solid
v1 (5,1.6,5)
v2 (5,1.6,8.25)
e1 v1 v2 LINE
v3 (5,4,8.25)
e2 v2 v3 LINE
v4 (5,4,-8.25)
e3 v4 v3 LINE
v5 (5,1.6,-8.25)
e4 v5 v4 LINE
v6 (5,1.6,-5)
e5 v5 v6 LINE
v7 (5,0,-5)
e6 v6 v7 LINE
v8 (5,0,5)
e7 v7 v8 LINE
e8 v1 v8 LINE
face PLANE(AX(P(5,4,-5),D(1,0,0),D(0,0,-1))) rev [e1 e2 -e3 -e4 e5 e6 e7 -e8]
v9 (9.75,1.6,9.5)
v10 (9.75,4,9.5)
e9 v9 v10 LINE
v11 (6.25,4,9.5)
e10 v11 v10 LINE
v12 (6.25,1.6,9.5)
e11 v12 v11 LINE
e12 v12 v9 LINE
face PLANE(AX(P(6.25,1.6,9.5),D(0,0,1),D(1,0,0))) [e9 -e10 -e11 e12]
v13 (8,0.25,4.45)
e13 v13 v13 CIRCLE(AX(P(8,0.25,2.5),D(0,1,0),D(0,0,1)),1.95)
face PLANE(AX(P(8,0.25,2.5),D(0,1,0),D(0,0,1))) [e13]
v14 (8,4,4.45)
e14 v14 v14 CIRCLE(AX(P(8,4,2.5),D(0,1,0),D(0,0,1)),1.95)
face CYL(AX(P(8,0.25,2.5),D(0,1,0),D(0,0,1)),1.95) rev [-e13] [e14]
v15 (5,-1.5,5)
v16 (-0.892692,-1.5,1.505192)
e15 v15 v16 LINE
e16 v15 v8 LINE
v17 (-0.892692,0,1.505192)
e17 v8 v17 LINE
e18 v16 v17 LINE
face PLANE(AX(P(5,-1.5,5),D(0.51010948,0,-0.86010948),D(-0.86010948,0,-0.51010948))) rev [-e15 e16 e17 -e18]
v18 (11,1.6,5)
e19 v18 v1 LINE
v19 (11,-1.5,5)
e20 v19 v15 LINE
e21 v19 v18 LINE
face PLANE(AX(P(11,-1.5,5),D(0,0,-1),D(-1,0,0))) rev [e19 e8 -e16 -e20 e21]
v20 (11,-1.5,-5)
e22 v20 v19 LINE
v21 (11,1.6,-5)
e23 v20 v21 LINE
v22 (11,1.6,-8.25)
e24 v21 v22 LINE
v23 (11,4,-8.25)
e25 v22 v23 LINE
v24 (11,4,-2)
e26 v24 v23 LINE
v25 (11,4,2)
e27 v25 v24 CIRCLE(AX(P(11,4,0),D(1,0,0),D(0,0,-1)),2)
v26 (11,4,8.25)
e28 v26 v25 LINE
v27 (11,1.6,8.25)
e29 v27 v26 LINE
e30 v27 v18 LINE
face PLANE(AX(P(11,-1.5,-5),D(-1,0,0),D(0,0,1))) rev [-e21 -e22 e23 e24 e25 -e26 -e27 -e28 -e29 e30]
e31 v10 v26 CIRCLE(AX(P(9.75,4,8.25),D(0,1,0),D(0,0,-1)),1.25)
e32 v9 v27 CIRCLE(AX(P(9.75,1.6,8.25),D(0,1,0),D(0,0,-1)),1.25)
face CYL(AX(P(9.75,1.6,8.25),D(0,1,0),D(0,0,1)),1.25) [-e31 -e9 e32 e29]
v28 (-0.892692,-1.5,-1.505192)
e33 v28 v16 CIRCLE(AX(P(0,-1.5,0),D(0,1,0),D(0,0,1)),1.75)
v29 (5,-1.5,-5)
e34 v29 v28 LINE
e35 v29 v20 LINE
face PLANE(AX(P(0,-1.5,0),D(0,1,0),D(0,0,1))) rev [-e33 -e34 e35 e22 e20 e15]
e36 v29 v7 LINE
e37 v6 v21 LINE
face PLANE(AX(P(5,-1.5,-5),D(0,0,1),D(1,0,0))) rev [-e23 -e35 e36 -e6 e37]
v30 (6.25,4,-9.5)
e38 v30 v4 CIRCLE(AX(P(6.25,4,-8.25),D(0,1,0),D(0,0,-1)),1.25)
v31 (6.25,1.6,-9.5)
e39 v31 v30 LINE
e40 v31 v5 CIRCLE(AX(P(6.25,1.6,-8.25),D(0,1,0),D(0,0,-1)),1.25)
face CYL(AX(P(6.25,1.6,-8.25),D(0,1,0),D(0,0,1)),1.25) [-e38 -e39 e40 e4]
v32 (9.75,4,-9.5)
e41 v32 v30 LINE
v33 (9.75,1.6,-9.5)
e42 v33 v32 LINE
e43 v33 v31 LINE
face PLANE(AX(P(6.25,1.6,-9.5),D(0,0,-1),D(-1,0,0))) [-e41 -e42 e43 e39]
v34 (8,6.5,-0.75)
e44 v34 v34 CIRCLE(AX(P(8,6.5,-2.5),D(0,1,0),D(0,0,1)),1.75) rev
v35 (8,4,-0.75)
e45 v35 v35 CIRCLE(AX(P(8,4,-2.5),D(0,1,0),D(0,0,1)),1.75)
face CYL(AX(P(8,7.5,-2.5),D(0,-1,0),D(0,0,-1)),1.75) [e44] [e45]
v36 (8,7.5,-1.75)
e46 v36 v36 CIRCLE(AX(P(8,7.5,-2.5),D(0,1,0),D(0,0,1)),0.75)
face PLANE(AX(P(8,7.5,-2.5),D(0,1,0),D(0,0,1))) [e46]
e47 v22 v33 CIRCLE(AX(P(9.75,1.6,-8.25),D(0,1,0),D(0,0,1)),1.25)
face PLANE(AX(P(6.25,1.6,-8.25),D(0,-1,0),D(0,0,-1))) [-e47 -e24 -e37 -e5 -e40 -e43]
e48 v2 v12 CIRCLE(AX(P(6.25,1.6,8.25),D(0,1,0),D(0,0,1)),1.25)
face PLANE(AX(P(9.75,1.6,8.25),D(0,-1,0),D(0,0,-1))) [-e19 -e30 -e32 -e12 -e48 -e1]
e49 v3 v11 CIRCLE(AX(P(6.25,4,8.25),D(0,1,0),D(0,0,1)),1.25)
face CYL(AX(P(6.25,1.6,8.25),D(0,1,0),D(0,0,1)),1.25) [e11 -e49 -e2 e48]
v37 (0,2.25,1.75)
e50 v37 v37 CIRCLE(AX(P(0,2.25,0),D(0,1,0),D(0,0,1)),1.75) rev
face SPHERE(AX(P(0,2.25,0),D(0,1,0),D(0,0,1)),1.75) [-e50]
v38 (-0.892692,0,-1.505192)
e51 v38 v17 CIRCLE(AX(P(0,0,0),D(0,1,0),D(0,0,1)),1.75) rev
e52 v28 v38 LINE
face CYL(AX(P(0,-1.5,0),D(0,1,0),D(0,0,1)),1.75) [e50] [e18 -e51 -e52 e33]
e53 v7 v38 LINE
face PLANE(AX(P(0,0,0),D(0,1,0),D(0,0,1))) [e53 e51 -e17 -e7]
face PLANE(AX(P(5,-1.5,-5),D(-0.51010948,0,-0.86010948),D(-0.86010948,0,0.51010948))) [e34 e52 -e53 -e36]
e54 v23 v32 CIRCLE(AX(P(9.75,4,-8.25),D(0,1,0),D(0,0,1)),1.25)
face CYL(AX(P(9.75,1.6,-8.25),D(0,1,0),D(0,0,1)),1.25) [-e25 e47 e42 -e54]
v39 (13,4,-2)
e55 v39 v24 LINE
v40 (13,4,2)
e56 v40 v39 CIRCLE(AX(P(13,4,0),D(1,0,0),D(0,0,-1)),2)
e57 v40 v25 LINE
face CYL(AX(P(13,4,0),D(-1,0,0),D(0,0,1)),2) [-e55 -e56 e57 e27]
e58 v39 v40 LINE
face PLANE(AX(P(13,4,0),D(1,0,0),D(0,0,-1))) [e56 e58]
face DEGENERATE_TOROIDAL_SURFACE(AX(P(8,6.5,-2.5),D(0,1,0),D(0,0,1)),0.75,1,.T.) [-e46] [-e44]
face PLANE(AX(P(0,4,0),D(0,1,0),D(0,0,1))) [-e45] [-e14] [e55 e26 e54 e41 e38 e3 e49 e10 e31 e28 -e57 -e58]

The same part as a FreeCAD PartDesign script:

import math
import FreeCAD as App
import Part
import Sketcher
Q = App.Units.Quantity


def edges_at(feature, points):
    """Names of the edges that pass closest to the given points."""
    edges = feature.Shape.Edges
    near = lambda p: min(range(len(edges)), key=lambda i: edges[i].distToShape(Part.Vertex(*p))[0])
    return sorted({f"Edge{near(p) + 1}" for p in points})

doc = App.newDocument("Part")
body = doc.addObject("PartDesign::Body", "Body")

# Sketch on XZ plane
sketch1 = doc.addObject("Sketcher::SketchObject", "Sketch")
body.addObject(sketch1)
sketch1.AttachmentSupport = (doc.XZ_Plane, [""])
sketch1.MapMode = "FlatFace"
sketch1.addGeometry([
    Part.LineSegment(App.Vector(11, -5, 0), App.Vector(5, -5, 0)),  # 0
    Part.LineSegment(App.Vector(5, -5, 0), App.Vector(-0.9, -1.5, 0)),  # 1
    Part.ArcOfCircle(Part.Circle(App.Vector(0, 0, 0), App.Vector(0, 0, 1), 1.8), math.radians(121), math.radians(239)),  # 2
    Part.LineSegment(App.Vector(-0.9, 1.5, 0), App.Vector(5, 5, 0)),  # 3
    Part.LineSegment(App.Vector(5, 5, 0), App.Vector(11, 5, 0)),  # 4
    Part.LineSegment(App.Vector(11, 5, 0), App.Vector(11, -5, 0)),  # 5
], False)
sketch1.addConstraint([
    Sketcher.Constraint("Coincident", 0, 2, 1, 1),
    Sketcher.Constraint("Tangent", 1, 2, 2, 2),
    Sketcher.Constraint("Tangent", 2, 1, 3, 1),
    Sketcher.Constraint("Coincident", 3, 2, 4, 1),
    Sketcher.Constraint("Coincident", 4, 2, 5, 1),
    Sketcher.Constraint("Coincident", 5, 2, 0, 1),
    Sketcher.Constraint("Horizontal", 0),
    Sketcher.Constraint("Horizontal", 4),
    Sketcher.Constraint("Vertical", 5),
    Sketcher.Constraint("Coincident", 2, 3, -1, 1),
    Sketcher.Constraint("Symmetric", 0, 2, 3, 2, -1),
    Sketcher.Constraint("DistanceX", 0, 2, 0, 1, Q("6 mm")),
    Sketcher.Constraint("DistanceY", 5, 2, 5, 1, Q("10 mm")),
    Sketcher.Constraint("Radius", 2, Q("1.75 mm")),
    Sketcher.Constraint("DistanceX", -1, 1, 0, 2, Q("5 mm")),
])
pad1 = doc.addObject("PartDesign::Pad", "Pad")
body.addObject(pad1)
pad1.Profile = sketch1
pad1.Length = 1.5

# Sketch on XZ plane
sketch2 = doc.addObject("Sketcher::SketchObject", "Sketch001")
body.addObject(sketch2)
sketch2.AttachmentSupport = (doc.XZ_Plane, [""])
sketch2.MapMode = "FlatFace"
sketch2.AttachmentOffset = App.Placement(App.Vector(0, 0, -4), App.Rotation())
sketch2.addGeometry([
    Part.Circle(App.Vector(0, 0, 0), App.Vector(0, 0, 1), 1.8),  # 0
    Part.LineSegment(App.Vector(5, -5, 0), App.Vector(5, 5, 0)),  # 1
    Part.LineSegment(App.Vector(5, 5, 0), App.Vector(11, 5, 0)),  # 2
    Part.LineSegment(App.Vector(11, 5, 0), App.Vector(11, -5, 0)),  # 3
    Part.LineSegment(App.Vector(11, -5, 0), App.Vector(5, -5, 0)),  # 4
], False)
sketch2.addConstraint([
    Sketcher.Constraint("Coincident", 1, 2, 2, 1),
    Sketcher.Constraint("Coincident", 2, 2, 3, 1),
    Sketcher.Constraint("Coincident", 3, 2, 4, 1),
    Sketcher.Constraint("Coincident", 4, 2, 1, 1),
    Sketcher.Constraint("Vertical", 1),
    Sketcher.Constraint("Horizontal", 2),
    Sketcher.Constraint("Vertical", 3),
    Sketcher.Constraint("Horizontal", 4),
    Sketcher.Constraint("Coincident", 0, 3, -1, 1),
    Sketcher.Constraint("Diameter", 0, Q("3.5 mm")),
    Sketcher.Constraint("DistanceX", 2, 1, 2, 2, Q("6 mm")),
    Sketcher.Constraint("DistanceY", 1, 1, 1, 2, Q("10 mm")),
    Sketcher.Constraint("DistanceX", -1, 1, 1, 2, Q("5 mm")),
    Sketcher.Constraint("DistanceY", -1, 1, 1, 2, Q("5 mm")),
])
pad2 = doc.addObject("PartDesign::Pad", "Pad001")
body.addObject(pad2)
pad2.Profile = sketch2
pad2.Length = 4

# Sketch on XZ plane
sketch3 = doc.addObject("Sketcher::SketchObject", "Sketch002")
body.addObject(sketch3)
sketch3.AttachmentSupport = (doc.XZ_Plane, [""])
sketch3.MapMode = "FlatFace"
sketch3.AttachmentOffset = App.Placement(App.Vector(0, 0, -4), App.Rotation())
sketch3.addGeometry([
    Part.LineSegment(App.Vector(5, -5, 0), App.Vector(11, -5, 0)),  # 0
    Part.LineSegment(App.Vector(11, -5, 0), App.Vector(11, -8.2, 0)),  # 1
    Part.ArcOfCircle(Part.Circle(App.Vector(9.7, -8.2, 0), App.Vector(0, 0, 1), 1.3), math.radians(-90), math.radians(0)),  # 2
    Part.LineSegment(App.Vector(9.8, -9.5, 0), App.Vector(6.2, -9.5, 0)),  # 3
    Part.ArcOfCircle(Part.Circle(App.Vector(6.3, -8.2, 0), App.Vector(0, 0, 1), 1.3), math.radians(-180), math.radians(-90)),  # 4
    Part.LineSegment(App.Vector(5, -8.2, 0), App.Vector(5, -5, 0)),  # 5
    Part.LineSegment(App.Vector(11, 5, 0), App.Vector(5, 5, 0)),  # 6
    Part.LineSegment(App.Vector(5, 5, 0), App.Vector(5, 8.2, 0)),  # 7
    Part.ArcOfCircle(Part.Circle(App.Vector(6.3, 8.2, 0), App.Vector(0, 0, 1), 1.3), math.radians(90), math.radians(180)),  # 8
    Part.LineSegment(App.Vector(6.2, 9.5, 0), App.Vector(9.8, 9.5, 0)),  # 9
    Part.ArcOfCircle(Part.Circle(App.Vector(9.7, 8.2, 0), App.Vector(0, 0, 1), 1.3), math.radians(0), math.radians(90)),  # 10
    Part.LineSegment(App.Vector(11, 8.2, 0), App.Vector(11, 5, 0)),  # 11
], False)
sketch3.addConstraint([
    Sketcher.Constraint("Coincident", 0, 2, 1, 1),
    Sketcher.Constraint("Tangent", 1, 2, 2, 2),
    Sketcher.Constraint("Tangent", 2, 1, 3, 1),
    Sketcher.Constraint("Tangent", 3, 2, 4, 2),
    Sketcher.Constraint("Tangent", 4, 1, 5, 1),
    Sketcher.Constraint("Coincident", 5, 2, 0, 1),
    Sketcher.Constraint("Coincident", 6, 2, 7, 1),
    Sketcher.Constraint("Tangent", 7, 2, 8, 2),
    Sketcher.Constraint("Tangent", 8, 1, 9, 1),
    Sketcher.Constraint("Tangent", 9, 2, 10, 2),
    Sketcher.Constraint("Tangent", 10, 1, 11, 1),
    Sketcher.Constraint("Coincident", 11, 2, 6, 1),
    Sketcher.Constraint("Horizontal", 0),
    Sketcher.Constraint("Vertical", 1),
    Sketcher.Constraint("Horizontal", 3),
    Sketcher.Constraint("Vertical", 5),
    Sketcher.Constraint("Horizontal", 6),
    Sketcher.Constraint("Vertical", 7),
    Sketcher.Constraint("Horizontal", 9),
    Sketcher.Constraint("Vertical", 11),
    Sketcher.Constraint("Equal", 2, 4),
    Sketcher.Constraint("Equal", 4, 8),
    Sketcher.Constraint("Equal", 8, 10),
    Sketcher.Constraint("Symmetric", 4, 3, 8, 3, -1),
    Sketcher.Constraint("Symmetric", 0, 2, 11, 2, -1),
    Sketcher.Constraint("DistanceX", 0, 1, 0, 2, Q("6 mm")),
    Sketcher.Constraint("Radius", 2, Q("1.25 mm")),
    Sketcher.Constraint("DistanceX", -1, 1, 0, 2, Q("11 mm")),
    Sketcher.Constraint("DistanceY", 0, 2, -1, 1, Q("5 mm")),
    Sketcher.Constraint("DistanceY", 1, 2, 1, 1, Q("3.25 mm")),
])
pad3 = doc.addObject("PartDesign::Pad", "Pad002")
body.addObject(pad3)
pad3.Profile = sketch3
pad3.Length = 2.4
doc.recompute()

fillet = doc.addObject("PartDesign::Fillet", "Fillet")
body.addObject(fillet)
fillet.Base = (pad3, edges_at(pad3, [(0, 4, -1.75)]))
fillet.Radius = 1.75

# Sketch on XZ plane
sketch4 = doc.addObject("Sketcher::SketchObject", "Sketch003")
body.addObject(sketch4)
sketch4.AttachmentSupport = (doc.XZ_Plane, [""])
sketch4.MapMode = "FlatFace"
sketch4.AttachmentOffset = App.Placement(App.Vector(0, 0, -4), App.Rotation())
sketch4.addGeometry(Part.Circle(App.Vector(8, -2.5, 0), App.Vector(0, 0, 1), 1.8), False)
sketch4.addConstraint([
    Sketcher.Constraint("Diameter", 0, Q("3.5 mm")),
    Sketcher.Constraint("DistanceX", -1, 1, 0, 3, Q("8 mm")),
    Sketcher.Constraint("DistanceY", 0, 3, -1, 1, Q("2.5 mm")),
])
pad4 = doc.addObject("PartDesign::Pad", "Pad003")
body.addObject(pad4)
pad4.Profile = sketch4
pad4.Length = 3.5
pad4.Reversed = True
doc.recompute()

fillet2 = doc.addObject("PartDesign::Fillet", "Fillet001")
body.addObject(fillet2)
fillet2.Base = (pad4, edges_at(pad4, [(8, 7.5, -4.25)]))
fillet2.Radius = 1

# Sketch on XZ plane
sketch5 = doc.addObject("Sketcher::SketchObject", "Sketch004")
body.addObject(sketch5)
sketch5.AttachmentSupport = (doc.XZ_Plane, [""])
sketch5.MapMode = "FlatFace"
sketch5.AttachmentOffset = App.Placement(App.Vector(0, 0, -4), App.Rotation())
sketch5.addGeometry(Part.Circle(App.Vector(8, 2.5, 0), App.Vector(0, 0, 1), 1.9), False)
sketch5.addConstraint([
    Sketcher.Constraint("Diameter", 0, Q("3.9 mm")),
    Sketcher.Constraint("DistanceX", -1, 1, 0, 3, Q("8 mm")),
    Sketcher.Constraint("DistanceY", -1, 1, 0, 3, Q("2.5 mm")),
])
pocket1 = doc.addObject("PartDesign::Pocket", "Pocket")
body.addObject(pocket1)
pocket1.Profile = sketch5
pocket1.Length = 3.75
pocket1.Reversed = True

# Sketch on YZ plane
sketch6 = doc.addObject("Sketcher::SketchObject", "Sketch005")
body.addObject(sketch6)
sketch6.AttachmentSupport = (doc.YZ_Plane, [""])
sketch6.MapMode = "FlatFace"
sketch6.AttachmentOffset = App.Placement(App.Vector(0, 0, 11), App.Rotation())
sketch6.addGeometry([
    Part.LineSegment(App.Vector(4, -2, 0), App.Vector(4, 2, 0)),
    Part.ArcOfCircle(Part.Circle(App.Vector(4, 0, 0), App.Vector(0, 0, 1), 2), math.radians(90), math.radians(270)),
], False)
sketch6.addConstraint([
    Sketcher.Constraint("Coincident", 0, 1, 1, 2),
    Sketcher.Constraint("Coincident", 1, 1, 0, 2),
    Sketcher.Constraint("Vertical", 0),
    Sketcher.Constraint("PointOnObject", 1, 3, -1),
    Sketcher.Constraint("Vertical", 1, 3, 0, 1),
    Sketcher.Constraint("Radius", 1, Q("2 mm")),
    Sketcher.Constraint("DistanceX", -1, 1, 1, 3, Q("4 mm")),
])
pad5 = doc.addObject("PartDesign::Pad", "Pad004")
body.addObject(pad5)
pad5.Profile = sketch6
pad5.Length = 2

doc.recompute()
